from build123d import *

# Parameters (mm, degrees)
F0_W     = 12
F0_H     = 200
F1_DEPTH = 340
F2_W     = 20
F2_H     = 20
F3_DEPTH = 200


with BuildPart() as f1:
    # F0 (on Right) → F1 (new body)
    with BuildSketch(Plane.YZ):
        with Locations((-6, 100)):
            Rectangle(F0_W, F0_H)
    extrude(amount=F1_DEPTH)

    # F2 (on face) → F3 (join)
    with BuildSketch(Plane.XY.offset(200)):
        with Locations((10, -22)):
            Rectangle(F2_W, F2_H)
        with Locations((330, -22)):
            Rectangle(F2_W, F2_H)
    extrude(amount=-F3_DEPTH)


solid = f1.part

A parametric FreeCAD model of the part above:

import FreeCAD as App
import Part
import Sketcher

doc = App.newDocument("Part")
body = doc.addObject("PartDesign::Body", "Body")

sketch1 = body.newObject("Sketcher::SketchObject", "Sketch")
sketch1.AttachmentSupport = (doc.getObject("YZ_Plane"), [""])
sketch1.MapMode = "FlatFace"
sketch1.addGeometry(Part.LineSegment(App.Vector(-12, 200, 0), App.Vector(-12, 0, 0)), False)
sketch1.addGeometry(Part.LineSegment(App.Vector(-12, 0, 0), App.Vector(0, 0, 0)), False)
sketch1.addGeometry(Part.LineSegment(App.Vector(0, 0, 0), App.Vector(0, 200, 0)), False)
sketch1.addGeometry(Part.LineSegment(App.Vector(0, 200, 0), App.Vector(-12, 200, 0)), False)
sketch1.addConstraint(Sketcher.Constraint("Coincident", 0, 2, 1, 1))
sketch1.addConstraint(Sketcher.Constraint("Coincident", 1, 2, 2, 1))
sketch1.addConstraint(Sketcher.Constraint("Coincident", 2, 2, 3, 1))
sketch1.addConstraint(Sketcher.Constraint("Coincident", 3, 2, 0, 1))
sketch1.addConstraint(Sketcher.Constraint("Vertical", 0))
sketch1.addConstraint(Sketcher.Constraint("Horizontal", 1))
sketch1.addConstraint(Sketcher.Constraint("Vertical", 2))
sketch1.addConstraint(Sketcher.Constraint("Horizontal", 3))
sketch1.addConstraint(Sketcher.Constraint("Coincident", 1, 2, -1, 1))
sketch1.addConstraint(Sketcher.Constraint("DistanceX", 1, 1, 1, 2, 12.0))
sketch1.addConstraint(Sketcher.Constraint("DistanceY", 0, 2, 0, 1, 200.0))
pad1 = body.newObject("PartDesign::Pad", "Pad")
pad1.Profile = sketch1
pad1.Length = 340

sketch2 = body.newObject("Sketcher::SketchObject", "Sketch001")
sketch2.AttachmentSupport = (doc.getObject("XY_Plane"), [""])
sketch2.MapMode = "FlatFace"
sketch2.AttachmentOffset = App.Placement(App.Vector(0, 0, 200), App.Rotation())
sketch2.addGeometry(Part.LineSegment(App.Vector(0, -12, 0), App.Vector(0, -32, 0)), False)
sketch2.addGeometry(Part.LineSegment(App.Vector(0, -32, 0), App.Vector(20, -32, 0)), False)
sketch2.addGeometry(Part.LineSegment(App.Vector(20, -32, 0), App.Vector(20, -12, 0)), False)
sketch2.addGeometry(Part.LineSegment(App.Vector(20, -12, 0), App.Vector(0, -12, 0)), False)
sketch2.addGeometry(Part.LineSegment(App.Vector(320, -12, 0), App.Vector(320, -32, 0)), False)
sketch2.addGeometry(Part.LineSegment(App.Vector(320, -32, 0), App.Vector(340, -32, 0)), False)
sketch2.addGeometry(Part.LineSegment(App.Vector(340, -32, 0), App.Vector(340, -12, 0)), False)
sketch2.addGeometry(Part.LineSegment(App.Vector(340, -12, 0), App.Vector(320, -12, 0)), False)
sketch2.addConstraint(Sketcher.Constraint("Coincident", 0, 2, 1, 1))
sketch2.addConstraint(Sketcher.Constraint("Coincident", 1, 2, 2, 1))
sketch2.addConstraint(Sketcher.Constraint("Coincident", 2, 2, 3, 1))
sketch2.addConstraint(Sketcher.Constraint("Coincident", 3, 2, 0, 1))
sketch2.addConstraint(Sketcher.Constraint("Coincident", 4, 2, 5, 1))
sketch2.addConstraint(Sketcher.Constraint("Coincident", 5, 2, 6, 1))
sketch2.addConstraint(Sketcher.Constraint("Coincident", 6, 2, 7, 1))
sketch2.addConstraint(Sketcher.Constraint("Coincident", 7, 2, 4, 1))
sketch2.addConstraint(Sketcher.Constraint("Vertical", 0))
sketch2.addConstraint(Sketcher.Constraint("Horizontal", 1))
sketch2.addConstraint(Sketcher.Constraint("Vertical", 2))
sketch2.addConstraint(Sketcher.Constraint("Horizontal", 3))
sketch2.addConstraint(Sketcher.Constraint("Vertical", 4))
sketch2.addConstraint(Sketcher.Constraint("Horizontal", 5))
sketch2.addConstraint(Sketcher.Constraint("Vertical", 6))
sketch2.addConstraint(Sketcher.Constraint("Horizontal", 7))
sketch2.addConstraint(Sketcher.Constraint("PointOnObject", 0, 2, -2))
sketch2.addConstraint(Sketcher.Constraint("Horizontal", 1, 2, 4, 2))
sketch2.addConstraint(Sketcher.Constraint("Horizontal", 3, 2, 6, 2))
sketch2.addConstraint(Sketcher.Constraint("Equal", 3, 5))
sketch2.addConstraint(Sketcher.Constraint("Equal", 7, 0))
sketch2.addConstraint(Sketcher.Constraint("DistanceX", 1, 1, 1, 2, 20.0))
sketch2.addConstraint(Sketcher.Constraint("DistanceY", 0, 2, -1, 1, 32.0))
sketch2.addConstraint(Sketcher.Constraint("DistanceX", -1, 1, 4, 2, 320.0))
pad2 = body.newObject("PartDesign::Pad", "Pad001")
pad2.Profile = sketch2
pad2.Length = 200
pad2.Reversed = True

doc.recompute()
